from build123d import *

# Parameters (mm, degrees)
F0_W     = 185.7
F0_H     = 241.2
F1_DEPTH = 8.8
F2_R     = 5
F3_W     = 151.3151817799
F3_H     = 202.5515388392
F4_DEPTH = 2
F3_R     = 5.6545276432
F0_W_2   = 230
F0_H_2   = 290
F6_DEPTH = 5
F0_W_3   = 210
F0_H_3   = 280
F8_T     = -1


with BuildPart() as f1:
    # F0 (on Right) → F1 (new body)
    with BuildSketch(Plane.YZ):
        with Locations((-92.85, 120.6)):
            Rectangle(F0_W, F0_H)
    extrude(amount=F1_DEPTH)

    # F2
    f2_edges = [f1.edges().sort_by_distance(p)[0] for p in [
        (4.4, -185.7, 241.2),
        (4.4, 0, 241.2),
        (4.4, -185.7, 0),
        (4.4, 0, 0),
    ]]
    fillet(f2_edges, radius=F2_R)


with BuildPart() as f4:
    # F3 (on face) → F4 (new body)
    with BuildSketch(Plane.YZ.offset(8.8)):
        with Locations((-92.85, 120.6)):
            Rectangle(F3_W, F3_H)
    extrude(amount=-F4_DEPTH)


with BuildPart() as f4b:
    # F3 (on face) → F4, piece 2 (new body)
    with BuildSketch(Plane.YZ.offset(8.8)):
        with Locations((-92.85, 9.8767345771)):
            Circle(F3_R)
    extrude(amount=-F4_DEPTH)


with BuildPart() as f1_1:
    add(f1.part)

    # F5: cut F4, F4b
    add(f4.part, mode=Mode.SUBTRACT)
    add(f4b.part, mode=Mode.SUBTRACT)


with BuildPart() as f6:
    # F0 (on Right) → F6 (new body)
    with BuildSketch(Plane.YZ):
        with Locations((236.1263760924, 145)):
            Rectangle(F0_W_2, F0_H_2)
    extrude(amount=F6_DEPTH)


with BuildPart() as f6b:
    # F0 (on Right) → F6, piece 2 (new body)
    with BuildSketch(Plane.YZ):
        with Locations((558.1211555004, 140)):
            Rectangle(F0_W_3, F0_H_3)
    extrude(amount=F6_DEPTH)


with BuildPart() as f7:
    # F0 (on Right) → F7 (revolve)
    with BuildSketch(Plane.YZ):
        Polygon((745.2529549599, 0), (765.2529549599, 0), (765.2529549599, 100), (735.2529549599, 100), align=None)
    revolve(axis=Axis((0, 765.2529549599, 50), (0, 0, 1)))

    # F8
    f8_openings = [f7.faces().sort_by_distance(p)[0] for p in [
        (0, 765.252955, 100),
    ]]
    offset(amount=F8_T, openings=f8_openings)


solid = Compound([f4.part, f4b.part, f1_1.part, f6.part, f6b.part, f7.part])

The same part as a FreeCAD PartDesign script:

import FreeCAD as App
import Part
import Sketcher
Q = App.Units.Quantity


def edges_at(feature, points):
    """Names of the edges that pass closest to the given points."""
    edges = feature.Shape.Edges
    near = lambda p: min(range(len(edges)), key=lambda i: edges[i].distToShape(Part.Vertex(*p))[0])
    return sorted({f"Edge{near(p) + 1}" for p in points})


def faces_at(feature, points):
    """Names of the faces that lie closest to the given points."""
    faces = feature.Shape.Faces
    near = lambda p: min(range(len(faces)), key=lambda i: faces[i].distToShape(Part.Vertex(*p))[0])
    return sorted({f"Face{near(p) + 1}" for p in points})

doc = App.newDocument("Part")
params = doc.addObject("Spreadsheet::Sheet", "Params")
for row, (alias, value) in enumerate([
    ("sketch1_width", "185.7 mm"),
    ("sketch1_height", "241.2 mm"),
    ("pad1_length", "8.8 mm"),
    ("fillet_radius", "5 mm"),
    ("pad2_length", "2 mm"),
    ("pad3_length", "2 mm"),
    ("sketch4_width", "230 mm"),
    ("sketch4_height", "290 mm"),
    ("pad4_length", "5 mm"),
    ("sketch5_width", "210 mm"),
    ("sketch5_height", "280 mm"),
    ("pad5_length", "5 mm"),
    ("sketch6_width", "20 mm"),
    ("sketch6_width2", "30 mm"),
    ("sketch6_height", "100 mm"),
    ("revolution_angle", "360 deg"),
    ("thickness_wall", "1 mm"),
], start=1):
    params.set(f"A{row}", alias)
    params.set(f"B{row}", "=" + value)
    params.setAlias(f"B{row}", alias)

body = doc.addObject("PartDesign::Body", "Body")

sketch1 = body.newObject("Sketcher::SketchObject", "Sketch")
sketch1.AttachmentSupport = (doc.getObject("YZ_Plane"), [""])
sketch1.MapMode = "FlatFace"
sketch1.addGeometry([
    Part.LineSegment(App.Vector(-186, 241, 0), App.Vector(-186, 0, 0)),
    Part.LineSegment(App.Vector(-186, 0, 0), App.Vector(0, 0, 0)),
    Part.LineSegment(App.Vector(0, 0, 0), App.Vector(0, 241, 0)),
    Part.LineSegment(App.Vector(0, 241, 0), App.Vector(-186, 241, 0)),
], False)
sketch1.addConstraint([
    Sketcher.Constraint("Coincident", 0, 2, 1, 1),
    Sketcher.Constraint("Coincident", 1, 2, 2, 1),
    Sketcher.Constraint("Coincident", 2, 2, 3, 1),
    Sketcher.Constraint("Coincident", 3, 2, 0, 1),
    Sketcher.Constraint("Vertical", 0),
    Sketcher.Constraint("Horizontal", 1),
    Sketcher.Constraint("Vertical", 2),
    Sketcher.Constraint("Horizontal", 3),
    Sketcher.Constraint("Coincident", 1, 2, -1, 1),
    Sketcher.Constraint("DistanceX", 1, 1, 1, 2, Q("185.7 mm")),
    Sketcher.Constraint("DistanceY", 0, 2, 0, 1, Q("241.2 mm")),
])
sketch1.setExpression("Constraints[9]", "Params.sketch1_width")
sketch1.setExpression("Constraints[10]", "Params.sketch1_height")
pad1 = body.newObject("PartDesign::Pad", "Pad")
pad1.Profile = sketch1
pad1.setExpression("Length", "Params.pad1_length")
doc.recompute()

fillet = body.newObject("PartDesign::Fillet", "Fillet")
fillet.Base = (pad1, edges_at(pad1, [
    (4.4, -185.7, 241.2),
    (4.4, 0, 241.2),
    (4.4, -185.7, 0),
    (4.4, 0, 0),
]))
fillet.setExpression("Radius", "Params.fillet_radius")
body2 = doc.addObject("PartDesign::Body", "Body001")

sketch2 = body2.newObject("Sketcher::SketchObject", "Sketch001")
sketch2.AttachmentSupport = (doc.getObject("YZ_Plane001"), [""])
sketch2.MapMode = "FlatFace"
sketch2.AttachmentOffset = App.Placement(App.Vector(0, 0, 8.8), App.Rotation())
sketch2.addGeometry([
    Part.LineSegment(App.Vector(-169, 222, 0), App.Vector(-169, 19, 0)),
    Part.LineSegment(App.Vector(-169, 19, 0), App.Vector(-17, 19, 0)),
    Part.LineSegment(App.Vector(-17, 19, 0), App.Vector(-17, 222, 0)),
    Part.LineSegment(App.Vector(-17, 222, 0), App.Vector(-169, 222, 0)),
], False)
sketch2.addConstraint([
    Sketcher.Constraint("Coincident", 0, 2, 1, 1),
    Sketcher.Constraint("Coincident", 1, 2, 2, 1),
    Sketcher.Constraint("Coincident", 2, 2, 3, 1),
    Sketcher.Constraint("Coincident", 3, 2, 0, 1),
    Sketcher.Constraint("Vertical", 0),
    Sketcher.Constraint("Horizontal", 1),
    Sketcher.Constraint("Vertical", 2),
    Sketcher.Constraint("Horizontal", 3),
    Sketcher.Constraint("DistanceX", 1, 1, 1, 2, Q("151.315182 mm")),
    Sketcher.Constraint("DistanceY", 0, 2, 0, 1, Q("202.551539 mm")),
    Sketcher.Constraint("DistanceX", 0, 2, -1, 1, Q("168.507591 mm")),
    Sketcher.Constraint("DistanceY", -1, 1, 0, 2, Q("19.324231 mm")),
])
pad2 = body2.newObject("PartDesign::Pad", "Pad001")
pad2.Profile = sketch2
pad2.setExpression("Length", "Params.pad2_length")
pad2.Reversed = True
body3 = doc.addObject("PartDesign::Body", "Body002")

sketch3 = body3.newObject("Sketcher::SketchObject", "Sketch002")
sketch3.AttachmentSupport = (doc.getObject("YZ_Plane002"), [""])
sketch3.MapMode = "FlatFace"
sketch3.AttachmentOffset = App.Placement(App.Vector(0, 0, 8.8), App.Rotation())
sketch3.addGeometry(Part.Circle(App.Vector(-93, 10, 0), App.Vector(0, 0, 1), 6), False)
sketch3.addConstraint([
    Sketcher.Constraint("DistanceX", 0, 3, -1, 1, Q("92.85 mm")),
    Sketcher.Constraint("Diameter", 0, Q("11.309055 mm")),
    Sketcher.Constraint("DistanceY", -1, 1, 0, 3, Q("9.876735 mm")),
])
pad3 = body3.newObject("PartDesign::Pad", "Pad002")
pad3.Profile = sketch3
pad3.setExpression("Length", "Params.pad3_length")
pad3.Reversed = True
doc.recompute()

body4 = doc.addObject("PartDesign::Body", "Body003")
body4.BaseFeature = body2
boolean = body.newObject("PartDesign::Boolean", "Boolean")
boolean.Type = "Cut"
boolean.addObjects([body4])
doc.recompute()

body5 = doc.addObject("PartDesign::Body", "Body004")
body5.BaseFeature = body3
boolean2 = body.newObject("PartDesign::Boolean", "Boolean001")
boolean2.Type = "Cut"
boolean2.addObjects([body5])
doc.recompute()
body6 = doc.addObject("PartDesign::Body", "Body005")

sketch4 = body6.newObject("Sketcher::SketchObject", "Sketch003")
sketch4.AttachmentSupport = (doc.getObject("YZ_Plane005"), [""])
sketch4.MapMode = "FlatFace"
sketch4.addGeometry([
    Part.LineSegment(App.Vector(121, 290, 0), App.Vector(121, 0, 0)),
    Part.LineSegment(App.Vector(121, 0, 0), App.Vector(351, 0, 0)),
    Part.LineSegment(App.Vector(351, 0, 0), App.Vector(351, 290, 0)),
    Part.LineSegment(App.Vector(351, 290, 0), App.Vector(121, 290, 0)),
], False)
sketch4.addConstraint([
    Sketcher.Constraint("Coincident", 0, 2, 1, 1),
    Sketcher.Constraint("Coincident", 1, 2, 2, 1),
    Sketcher.Constraint("Coincident", 2, 2, 3, 1),
    Sketcher.Constraint("Coincident", 3, 2, 0, 1),
    Sketcher.Constraint("Vertical", 0),
    Sketcher.Constraint("Horizontal", 1),
    Sketcher.Constraint("Vertical", 2),
    Sketcher.Constraint("Horizontal", 3),
    Sketcher.Constraint("PointOnObject", 0, 2, -1),
    Sketcher.Constraint("DistanceX", 1, 1, 1, 2, Q("230 mm")),
    Sketcher.Constraint("DistanceY", 0, 2, 0, 1, Q("290 mm")),
    Sketcher.Constraint("DistanceX", -1, 1, 0, 2, Q("121.126376 mm")),
])
sketch4.setExpression("Constraints[9]", "Params.sketch4_width")
sketch4.setExpression("Constraints[10]", "Params.sketch4_height")
pad4 = body6.newObject("PartDesign::Pad", "Pad003")
pad4.Profile = sketch4
pad4.setExpression("Length", "Params.pad4_length")
body7 = doc.addObject("PartDesign::Body", "Body006")

sketch5 = body7.newObject("Sketcher::SketchObject", "Sketch004")
sketch5.AttachmentSupport = (doc.getObject("YZ_Plane006"), [""])
sketch5.MapMode = "FlatFace"
sketch5.addGeometry([
    Part.LineSegment(App.Vector(453, 280, 0), App.Vector(453, 0, 0)),
    Part.LineSegment(App.Vector(453, 0, 0), App.Vector(663, 0, 0)),
    Part.LineSegment(App.Vector(663, 0, 0), App.Vector(663, 280, 0)),
    Part.LineSegment(App.Vector(663, 280, 0), App.Vector(453, 280, 0)),
], False)
sketch5.addConstraint([
    Sketcher.Constraint("Coincident", 0, 2, 1, 1),
    Sketcher.Constraint("Coincident", 1, 2, 2, 1),
    Sketcher.Constraint("Coincident", 2, 2, 3, 1),
    Sketcher.Constraint("Coincident", 3, 2, 0, 1),
    Sketcher.Constraint("Vertical", 0),
    Sketcher.Constraint("Horizontal", 1),
    Sketcher.Constraint("Vertical", 2),
    Sketcher.Constraint("Horizontal", 3),
    Sketcher.Constraint("PointOnObject", 0, 2, -1),
    Sketcher.Constraint("DistanceX", 1, 1, 1, 2, Q("210 mm")),
    Sketcher.Constraint("DistanceY", 0, 2, 0, 1, Q("280 mm")),
    Sketcher.Constraint("DistanceX", -1, 1, 0, 2, Q("453.121155 mm")),
])
sketch5.setExpression("Constraints[9]", "Params.sketch5_width")
sketch5.setExpression("Constraints[10]", "Params.sketch5_height")
pad5 = body7.newObject("PartDesign::Pad", "Pad004")
pad5.Profile = sketch5
pad5.setExpression("Length", "Params.pad5_length")
body8 = doc.addObject("PartDesign::Body", "Body007")

sketch6 = body8.newObject("Sketcher::SketchObject", "Sketch005")
sketch6.AttachmentSupport = (doc.getObject("YZ_Plane007"), [""])
sketch6.MapMode = "FlatFace"
sketch6.addGeometry([
    Part.LineSegment(App.Vector(745, 0, 0), App.Vector(765, 0, 0)),
    Part.LineSegment(App.Vector(765, 0, 0), App.Vector(765, 100, 0)),
    Part.LineSegment(App.Vector(765, 100, 0), App.Vector(735, 100, 0)),
    Part.LineSegment(App.Vector(735, 100, 0), App.Vector(745, 0, 0)),
], False)
sketch6.addGeometry(Part.LineSegment(App.Vector(765, 0, 0), App.Vector(765, 100, 0)), True)
sketch6.addConstraint([
    Sketcher.Constraint("Coincident", 0, 2, 1, 1),
    Sketcher.Constraint("Coincident", 1, 2, 2, 1),
    Sketcher.Constraint("Coincident", 2, 2, 3, 1),
    Sketcher.Constraint("Coincident", 3, 2, 0, 1),
    Sketcher.Constraint("Horizontal", 0),
    Sketcher.Constraint("Vertical", 1),
    Sketcher.Constraint("Horizontal", 2),
    Sketcher.Constraint("Vertical", 4),
    Sketcher.Constraint("Coincident", 4, 1, 0, 2),
    Sketcher.Constraint("PointOnObject", 0, 2, -1),
    Sketcher.Constraint("Horizontal", 2, 2, 4, 2),
    Sketcher.Constraint("DistanceX", 0, 1, 0, 2, Q("20 mm")),
    Sketcher.Constraint("DistanceX", 2, 2, 2, 1, Q("30 mm")),
    Sketcher.Constraint("DistanceY", 1, 1, 1, 2, Q("100 mm")),
    Sketcher.Constraint("DistanceX", -1, 1, 0, 2, Q("765.252955 mm")),
])
sketch6.setExpression("Constraints[11]", "Params.sketch6_width")
sketch6.setExpression("Constraints[12]", "Params.sketch6_width2")
sketch6.setExpression("Constraints[13]", "Params.sketch6_height")
revolution = body8.newObject("PartDesign::Revolution", "Revolution")
revolution.Profile = sketch6
revolution.ReferenceAxis = (sketch6, ["Axis0"])
revolution.setExpression("Angle", "Params.revolution_angle")
doc.recompute()

thickness = body8.newObject("PartDesign::Thickness", "Thickness")
thickness.Base = (revolution, faces_at(revolution, [(0, 765.253, 100)]))
thickness.setExpression("Value", "Params.thickness_wall")
thickness.Reversed = True
thickness.Join = "Arc"

doc.recompute()
